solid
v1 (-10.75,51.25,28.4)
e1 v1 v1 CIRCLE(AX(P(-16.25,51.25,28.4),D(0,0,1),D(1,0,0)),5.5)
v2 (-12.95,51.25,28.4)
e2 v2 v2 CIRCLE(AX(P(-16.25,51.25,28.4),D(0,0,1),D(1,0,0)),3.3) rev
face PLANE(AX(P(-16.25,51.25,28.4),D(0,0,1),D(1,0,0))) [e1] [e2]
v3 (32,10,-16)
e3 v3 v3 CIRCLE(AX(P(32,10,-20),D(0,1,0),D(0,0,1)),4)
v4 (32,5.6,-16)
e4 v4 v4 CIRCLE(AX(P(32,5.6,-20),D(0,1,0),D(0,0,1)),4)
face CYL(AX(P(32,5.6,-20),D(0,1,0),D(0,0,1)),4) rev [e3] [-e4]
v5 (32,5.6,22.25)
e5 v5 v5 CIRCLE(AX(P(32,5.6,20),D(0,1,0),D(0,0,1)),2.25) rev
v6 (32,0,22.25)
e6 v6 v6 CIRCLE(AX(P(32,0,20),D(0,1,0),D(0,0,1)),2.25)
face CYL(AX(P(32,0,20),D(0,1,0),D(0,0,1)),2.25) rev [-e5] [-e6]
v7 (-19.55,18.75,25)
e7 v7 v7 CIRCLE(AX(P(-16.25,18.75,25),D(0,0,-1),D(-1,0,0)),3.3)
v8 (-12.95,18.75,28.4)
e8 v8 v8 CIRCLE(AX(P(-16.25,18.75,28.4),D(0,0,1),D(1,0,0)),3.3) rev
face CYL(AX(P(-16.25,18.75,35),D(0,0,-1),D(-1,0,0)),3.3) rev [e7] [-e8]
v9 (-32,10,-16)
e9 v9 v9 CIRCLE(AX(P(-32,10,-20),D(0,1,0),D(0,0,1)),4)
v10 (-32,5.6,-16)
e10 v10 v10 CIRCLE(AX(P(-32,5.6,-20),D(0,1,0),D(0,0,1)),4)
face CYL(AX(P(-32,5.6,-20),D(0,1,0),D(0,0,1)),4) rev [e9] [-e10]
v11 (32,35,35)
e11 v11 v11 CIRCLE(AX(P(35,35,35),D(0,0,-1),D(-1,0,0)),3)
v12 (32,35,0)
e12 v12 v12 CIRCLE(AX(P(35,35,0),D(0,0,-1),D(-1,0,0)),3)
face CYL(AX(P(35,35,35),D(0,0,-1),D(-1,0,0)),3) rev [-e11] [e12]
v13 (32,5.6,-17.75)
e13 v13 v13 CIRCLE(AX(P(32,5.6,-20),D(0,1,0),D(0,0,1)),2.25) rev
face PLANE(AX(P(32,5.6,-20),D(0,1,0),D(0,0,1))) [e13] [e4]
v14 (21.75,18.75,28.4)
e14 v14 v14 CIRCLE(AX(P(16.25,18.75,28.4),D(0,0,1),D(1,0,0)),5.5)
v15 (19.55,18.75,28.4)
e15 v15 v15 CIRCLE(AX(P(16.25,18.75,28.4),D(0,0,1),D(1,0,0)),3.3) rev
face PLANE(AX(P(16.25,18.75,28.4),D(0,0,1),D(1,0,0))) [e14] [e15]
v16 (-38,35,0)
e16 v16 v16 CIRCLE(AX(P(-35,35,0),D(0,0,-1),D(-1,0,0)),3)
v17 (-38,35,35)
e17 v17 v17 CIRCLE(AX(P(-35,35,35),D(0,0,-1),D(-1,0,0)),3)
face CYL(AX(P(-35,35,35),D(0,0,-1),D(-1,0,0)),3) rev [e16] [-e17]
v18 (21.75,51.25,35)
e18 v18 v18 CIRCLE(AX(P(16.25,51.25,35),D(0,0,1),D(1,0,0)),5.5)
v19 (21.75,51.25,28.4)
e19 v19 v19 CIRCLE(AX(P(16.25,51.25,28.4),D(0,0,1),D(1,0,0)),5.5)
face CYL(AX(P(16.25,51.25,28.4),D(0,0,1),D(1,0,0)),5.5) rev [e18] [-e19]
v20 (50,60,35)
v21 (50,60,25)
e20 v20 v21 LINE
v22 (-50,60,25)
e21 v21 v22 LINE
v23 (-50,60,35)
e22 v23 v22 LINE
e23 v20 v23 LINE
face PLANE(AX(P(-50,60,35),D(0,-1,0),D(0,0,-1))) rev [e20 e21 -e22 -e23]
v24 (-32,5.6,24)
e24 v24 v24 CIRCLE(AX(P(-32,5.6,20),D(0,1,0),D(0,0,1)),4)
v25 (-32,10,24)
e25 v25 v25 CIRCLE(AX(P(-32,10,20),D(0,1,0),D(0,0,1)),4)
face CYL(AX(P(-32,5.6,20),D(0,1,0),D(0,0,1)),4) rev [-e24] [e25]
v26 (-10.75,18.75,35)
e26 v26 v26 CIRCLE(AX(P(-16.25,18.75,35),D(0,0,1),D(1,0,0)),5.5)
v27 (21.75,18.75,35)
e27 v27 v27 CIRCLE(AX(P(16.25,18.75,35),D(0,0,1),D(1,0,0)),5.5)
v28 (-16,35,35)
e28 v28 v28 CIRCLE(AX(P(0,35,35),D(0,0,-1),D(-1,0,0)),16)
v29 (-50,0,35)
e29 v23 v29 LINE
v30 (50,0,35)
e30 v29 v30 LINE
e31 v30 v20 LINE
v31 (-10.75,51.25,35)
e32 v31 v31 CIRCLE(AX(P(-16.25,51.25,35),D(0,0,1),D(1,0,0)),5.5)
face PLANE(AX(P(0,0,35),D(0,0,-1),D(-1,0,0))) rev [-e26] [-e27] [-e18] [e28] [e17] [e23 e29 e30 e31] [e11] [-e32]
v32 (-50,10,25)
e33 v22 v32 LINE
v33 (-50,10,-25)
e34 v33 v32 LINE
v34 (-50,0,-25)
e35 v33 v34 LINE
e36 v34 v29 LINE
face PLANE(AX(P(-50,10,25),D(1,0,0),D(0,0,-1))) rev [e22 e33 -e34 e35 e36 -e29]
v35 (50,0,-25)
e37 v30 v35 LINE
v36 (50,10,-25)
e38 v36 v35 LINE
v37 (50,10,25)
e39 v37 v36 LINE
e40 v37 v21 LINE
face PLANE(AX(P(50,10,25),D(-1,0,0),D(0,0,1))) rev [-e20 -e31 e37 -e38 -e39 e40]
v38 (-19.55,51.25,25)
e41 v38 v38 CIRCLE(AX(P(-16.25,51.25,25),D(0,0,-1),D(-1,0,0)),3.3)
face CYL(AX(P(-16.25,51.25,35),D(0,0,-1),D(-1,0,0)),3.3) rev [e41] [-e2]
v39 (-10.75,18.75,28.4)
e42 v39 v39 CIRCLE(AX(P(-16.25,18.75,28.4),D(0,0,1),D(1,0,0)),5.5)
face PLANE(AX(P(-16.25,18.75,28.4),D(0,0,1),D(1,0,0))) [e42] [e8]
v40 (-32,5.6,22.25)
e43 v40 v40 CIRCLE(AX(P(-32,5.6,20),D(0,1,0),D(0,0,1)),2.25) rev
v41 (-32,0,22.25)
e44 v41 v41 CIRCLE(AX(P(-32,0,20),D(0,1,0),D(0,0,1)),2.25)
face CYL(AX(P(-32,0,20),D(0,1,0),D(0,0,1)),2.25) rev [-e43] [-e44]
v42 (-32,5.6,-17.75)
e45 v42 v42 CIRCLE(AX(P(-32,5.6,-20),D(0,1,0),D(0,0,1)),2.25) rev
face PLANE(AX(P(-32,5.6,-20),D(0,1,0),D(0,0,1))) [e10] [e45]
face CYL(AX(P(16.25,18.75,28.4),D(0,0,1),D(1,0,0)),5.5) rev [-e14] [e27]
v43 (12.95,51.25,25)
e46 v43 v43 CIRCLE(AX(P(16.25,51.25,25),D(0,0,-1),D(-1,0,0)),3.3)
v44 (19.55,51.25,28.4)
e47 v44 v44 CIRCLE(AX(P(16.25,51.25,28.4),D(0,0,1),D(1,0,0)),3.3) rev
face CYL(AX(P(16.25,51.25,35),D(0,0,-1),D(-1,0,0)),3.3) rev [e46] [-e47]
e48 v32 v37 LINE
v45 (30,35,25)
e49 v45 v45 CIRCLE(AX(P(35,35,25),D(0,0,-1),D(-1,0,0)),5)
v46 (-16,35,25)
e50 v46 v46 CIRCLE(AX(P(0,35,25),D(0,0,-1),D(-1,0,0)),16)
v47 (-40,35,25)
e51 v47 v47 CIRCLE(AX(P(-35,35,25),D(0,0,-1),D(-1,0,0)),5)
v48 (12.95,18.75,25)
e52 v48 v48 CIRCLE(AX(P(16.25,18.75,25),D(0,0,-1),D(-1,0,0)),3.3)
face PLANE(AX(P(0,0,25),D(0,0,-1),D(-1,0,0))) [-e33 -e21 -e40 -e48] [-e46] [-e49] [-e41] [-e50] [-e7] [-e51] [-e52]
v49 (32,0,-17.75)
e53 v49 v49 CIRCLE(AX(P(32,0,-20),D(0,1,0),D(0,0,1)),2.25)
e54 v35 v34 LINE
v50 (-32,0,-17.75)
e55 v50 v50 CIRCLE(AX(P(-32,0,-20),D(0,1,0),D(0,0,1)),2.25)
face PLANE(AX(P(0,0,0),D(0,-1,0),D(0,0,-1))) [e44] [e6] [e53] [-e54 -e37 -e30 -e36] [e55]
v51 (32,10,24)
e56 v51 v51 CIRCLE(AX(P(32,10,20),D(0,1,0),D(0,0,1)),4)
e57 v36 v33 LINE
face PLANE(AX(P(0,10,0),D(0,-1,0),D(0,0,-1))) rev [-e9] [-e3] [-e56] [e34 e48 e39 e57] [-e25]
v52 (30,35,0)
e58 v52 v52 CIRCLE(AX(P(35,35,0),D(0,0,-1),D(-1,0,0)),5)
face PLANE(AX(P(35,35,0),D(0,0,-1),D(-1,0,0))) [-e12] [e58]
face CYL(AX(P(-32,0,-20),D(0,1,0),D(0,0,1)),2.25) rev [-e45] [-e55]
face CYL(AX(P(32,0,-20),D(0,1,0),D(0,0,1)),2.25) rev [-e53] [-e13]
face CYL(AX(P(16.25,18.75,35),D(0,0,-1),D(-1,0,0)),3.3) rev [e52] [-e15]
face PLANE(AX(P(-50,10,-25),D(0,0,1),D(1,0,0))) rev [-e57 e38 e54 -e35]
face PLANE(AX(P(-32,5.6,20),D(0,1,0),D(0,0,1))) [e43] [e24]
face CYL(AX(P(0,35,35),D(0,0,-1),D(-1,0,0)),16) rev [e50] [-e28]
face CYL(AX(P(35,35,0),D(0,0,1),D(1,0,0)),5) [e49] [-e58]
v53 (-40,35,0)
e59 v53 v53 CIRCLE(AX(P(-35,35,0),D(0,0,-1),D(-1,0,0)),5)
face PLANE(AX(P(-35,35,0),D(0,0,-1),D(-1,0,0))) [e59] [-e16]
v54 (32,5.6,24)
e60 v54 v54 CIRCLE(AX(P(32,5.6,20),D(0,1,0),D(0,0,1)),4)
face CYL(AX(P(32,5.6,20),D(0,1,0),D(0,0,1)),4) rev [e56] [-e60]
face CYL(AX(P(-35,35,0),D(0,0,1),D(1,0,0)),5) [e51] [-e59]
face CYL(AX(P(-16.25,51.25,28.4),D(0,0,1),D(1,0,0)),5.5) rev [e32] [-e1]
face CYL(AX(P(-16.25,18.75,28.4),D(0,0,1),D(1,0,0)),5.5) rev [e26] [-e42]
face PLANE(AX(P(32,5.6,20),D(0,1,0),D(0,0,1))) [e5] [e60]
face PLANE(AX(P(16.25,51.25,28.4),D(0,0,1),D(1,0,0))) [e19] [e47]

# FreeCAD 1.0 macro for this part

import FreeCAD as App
import Part
import Sketcher
from FreeCAD import Vector
Q = App.Units.Quantity

doc = App.newDocument("Part")
body = doc.addObject("PartDesign::Body", "Body")

# Sketch on XZ plane
sketch1 = body.newObject("Sketcher::SketchObject", "Sketch")
sketch1.AttachmentSupport = (doc.getObject("XZ_Plane"), [""])
sketch1.MapMode = "FlatFace"
sketch1.addGeometry([
    Part.LineSegment(Vector(-50, -25, 0), Vector(-50, 25, 0)),
    Part.LineSegment(Vector(-50, 25, 0), Vector(50, 25, 0)),
    Part.LineSegment(Vector(50, 25, 0), Vector(50, -25, 0)),
    Part.LineSegment(Vector(50, -25, 0), Vector(-50, -25, 0)),
], False)
sketch1.addConstraint([
    Sketcher.Constraint("Coincident", 0, 2, 1, 1),
    Sketcher.Constraint("Coincident", 1, 2, 2, 1),
    Sketcher.Constraint("Coincident", 2, 2, 3, 1),
    Sketcher.Constraint("Coincident", 3, 2, 0, 1),
    Sketcher.Constraint("Vertical", 0),
    Sketcher.Constraint("Horizontal", 1),
    Sketcher.Constraint("Vertical", 2),
    Sketcher.Constraint("Horizontal", 3),
    Sketcher.Constraint("Symmetric", 0, 2, 2, 2, -1, 1),
    Sketcher.Constraint("DistanceX", 1, 1, 1, 2, Q("100 mm")),
    Sketcher.Constraint("DistanceY", 0, 1, 0, 2, Q("50 mm")),
])
pad1 = body.newObject("PartDesign::Pad", "Pad")
pad1.Profile = sketch1
pad1.Length = 10
pad1.Reversed = True

# Sketch on XZ plane
sketch2 = body.newObject("Sketcher::SketchObject", "Sketch001")
sketch2.AttachmentSupport = (doc.getObject("XZ_Plane"), [""])
sketch2.MapMode = "FlatFace"
sketch2.AttachmentOffset = App.Placement(Vector(0, 0, -10), App.Rotation())
sketch2.addGeometry([
    Part.Circle(Vector(32, -20, 0), Vector(0, 0, 1), 2.2),
    Part.Circle(Vector(32, 20, 0), Vector(0, 0, 1), 2.2),
    Part.Circle(Vector(-32, -20, 0), Vector(0, 0, 1), 2.2),
    Part.Circle(Vector(-32, 20, 0), Vector(0, 0, 1), 2.2),
], False)
sketch2.addConstraint([
    Sketcher.Constraint("Equal", 0, 1),
    Sketcher.Constraint("Equal", 1, 2),
    Sketcher.Constraint("Equal", 2, 3),
    Sketcher.Constraint("Symmetric", 1, 3, 2, 3, -1, 1),
    Sketcher.Constraint("Symmetric", 0, 3, 3, 3, -1, 1),
    Sketcher.Constraint("Symmetric", 0, 3, 2, 3, -2),
    Sketcher.Constraint("Diameter", 0, Q("4.5 mm")),
    Sketcher.Constraint("DistanceX", -1, 1, 0, 3, Q("32 mm")),
    Sketcher.Constraint("DistanceY", 0, 3, -1, 1, Q("20 mm")),
])
pocket1 = body.newObject("PartDesign::Pocket", "Pocket")
pocket1.Profile = sketch2
pocket1.Type = "ThroughAll"
pocket1.Reversed = True

# Sketch on XZ plane
sketch3 = body.newObject("Sketcher::SketchObject", "Sketch002")
sketch3.AttachmentSupport = (doc.getObject("XZ_Plane"), [""])
sketch3.MapMode = "FlatFace"
sketch3.AttachmentOffset = App.Placement(Vector(0, 0, -10), App.Rotation())
sketch3.addGeometry([
    Part.Circle(Vector(32, -20, 0), Vector(0, 0, 1), 4),
    Part.Circle(Vector(32, 20, 0), Vector(0, 0, 1), 4),
    Part.Circle(Vector(-32, -20, 0), Vector(0, 0, 1), 4),
    Part.Circle(Vector(-32, 20, 0), Vector(0, 0, 1), 4),
], False)
sketch3.addConstraint([
    Sketcher.Constraint("Equal", 0, 1),
    Sketcher.Constraint("Equal", 1, 2),
    Sketcher.Constraint("Equal", 2, 3),
    Sketcher.Constraint("Symmetric", 1, 3, 2, 3, -1, 1),
    Sketcher.Constraint("Symmetric", 0, 3, 3, 3, -1, 1),
    Sketcher.Constraint("Symmetric", 0, 3, 2, 3, -2),
    Sketcher.Constraint("Diameter", 0, Q("8 mm")),
    Sketcher.Constraint("DistanceX", -1, 1, 0, 3, Q("32 mm")),
    Sketcher.Constraint("DistanceY", 0, 3, -1, 1, Q("20 mm")),
])
pocket2 = body.newObject("PartDesign::Pocket", "Pocket001")
pocket2.Profile = sketch3
pocket2.Length = 4.4
pocket2.Reversed = True

# Sketch on XY plane
sketch4 = body.newObject("Sketcher::SketchObject", "Sketch003")
sketch4.AttachmentSupport = (doc.getObject("XY_Plane"), [""])
sketch4.MapMode = "FlatFace"
sketch4.AttachmentOffset = App.Placement(Vector(0, 0, 25), App.Rotation())
sketch4.addGeometry([
    Part.LineSegment(Vector(-50, 60, 0), Vector(-50, 0, 0)),
    Part.LineSegment(Vector(-50, 0, 0), Vector(50, 0, 0)),
    Part.LineSegment(Vector(50, 0, 0), Vector(50, 60, 0)),
    Part.LineSegment(Vector(50, 60, 0), Vector(-50, 60, 0)),
], False)
sketch4.addConstraint([
    Sketcher.Constraint("Coincident", 0, 2, 1, 1),
    Sketcher.Constraint("Coincident", 1, 2, 2, 1),
    Sketcher.Constraint("Coincident", 2, 2, 3, 1),
    Sketcher.Constraint("Coincident", 3, 2, 0, 1),
    Sketcher.Constraint("Vertical", 0),
    Sketcher.Constraint("Horizontal", 1),
    Sketcher.Constraint("Vertical", 2),
    Sketcher.Constraint("Horizontal", 3),
    Sketcher.Constraint("Symmetric", 0, 2, 1, 2, -1, 1),
    Sketcher.Constraint("DistanceX", 1, 1, 1, 2, Q("100 mm")),
    Sketcher.Constraint("DistanceY", 0, 2, 0, 1, Q("60 mm")),
])
pad2 = body.newObject("PartDesign::Pad", "Pad001")
pad2.Profile = sketch4
pad2.Length = 10

# Sketch on XY plane
sketch5 = body.newObject("Sketcher::SketchObject", "Sketch004")
sketch5.AttachmentSupport = (doc.getObject("XY_Plane"), [""])
sketch5.MapMode = "FlatFace"
sketch5.AttachmentOffset = App.Placement(Vector(0, 0, 25), App.Rotation())
sketch5.addGeometry(Part.Circle(Vector(0, 35, 0), Vector(0, 0, 1), 16), False)
sketch5.addConstraint([
    Sketcher.Constraint("PointOnObject", 0, 3, -2),
    Sketcher.Constraint("Diameter", 0, Q("32 mm")),
    Sketcher.Constraint("DistanceY", -1, 1, 0, 3, Q("35 mm")),
])
pocket3 = body.newObject("PartDesign::Pocket", "Pocket002")
pocket3.Profile = sketch5
pocket3.Type = "ThroughAll"
pocket3.Reversed = True

# Sketch on XY plane
sketch6 = body.newObject("Sketcher::SketchObject", "Sketch005")
sketch6.AttachmentSupport = (doc.getObject("XY_Plane"), [""])
sketch6.MapMode = "FlatFace"
sketch6.AttachmentOffset = App.Placement(Vector(0, 0, 25), App.Rotation())
sketch6.addGeometry([
    Part.Circle(Vector(16.2, 51.2, 0), Vector(0, 0, 1), 3.3),
    Part.Circle(Vector(16.2, 18.8, 0), Vector(0, 0, 1), 3.3),
    Part.Circle(Vector(-16.2, 18.8, 0), Vector(0, 0, 1), 3.3),
    Part.Circle(Vector(-16.2, 51.2, 0), Vector(0, 0, 1), 3.3),
], False)
sketch6.addConstraint([
    Sketcher.Constraint("Equal", 0, 1),
    Sketcher.Constraint("Equal", 1, 2),
    Sketcher.Constraint("Equal", 2, 3),
    Sketcher.Constraint("Symmetric", 1, 3, 2, 3, -2),
    Sketcher.Constraint("Symmetric", 0, 3, 3, 3, -2),
    Sketcher.Constraint("Vertical", 0, 3, 1, 3),
    Sketcher.Constraint("Diameter", 0, Q("6.6 mm")),
    Sketcher.Constraint("DistanceY", 1, 3, 0, 3, Q("32.5 mm")),
    Sketcher.Constraint("DistanceX", 2, 3, 1, 3, Q("32.5 mm")),
    Sketcher.Constraint("DistanceY", -1, 1, 0, 3, Q("51.25 mm")),
])
pocket4 = body.newObject("PartDesign::Pocket", "Pocket003")
pocket4.Profile = sketch6
pocket4.Type = "ThroughAll"
pocket4.Reversed = True

# Sketch on XY plane
sketch7 = body.newObject("Sketcher::SketchObject", "Sketch006")
sketch7.AttachmentSupport = (doc.getObject("XY_Plane"), [""])
sketch7.MapMode = "FlatFace"
sketch7.AttachmentOffset = App.Placement(Vector(0, 0, 35), App.Rotation())
sketch7.addGeometry([
    Part.Circle(Vector(-16, 51, 0), Vector(0, 0, 1), 6),
    Part.Circle(Vector(16, 51, 0), Vector(0, 0, 1), 6),
    Part.Circle(Vector(16, 19, 0), Vector(0, 0, 1), 6),
    Part.Circle(Vector(-16, 19, 0), Vector(0, 0, 1), 6),
], False)
sketch7.addConstraint([
    Sketcher.Constraint("Equal", 0, 1),
    Sketcher.Constraint("Equal", 1, 2),
    Sketcher.Constraint("Equal", 2, 3),
    Sketcher.Constraint("Symmetric", 0, 3, 1, 3, -2),
    Sketcher.Constraint("Symmetric", 2, 3, 3, 3, -2),
    Sketcher.Constraint("Vertical", 1, 3, 2, 3),
    Sketcher.Constraint("Diameter", 0, Q("11 mm")),
    Sketcher.Constraint("DistanceX", 0, 3, 1, 3, Q("32.5 mm")),
    Sketcher.Constraint("DistanceY", 2, 3, 1, 3, Q("32.5 mm")),
    Sketcher.Constraint("DistanceY", -1, 1, 0, 3, Q("51.25 mm")),
])
pocket5 = body.newObject("PartDesign::Pocket", "Pocket004")
pocket5.Profile = sketch7
pocket5.Length = 6.6

# Sketch on XY plane
sketch8 = body.newObject("Sketcher::SketchObject", "Sketch007")
sketch8.AttachmentSupport = (doc.getObject("XY_Plane"), [""])
sketch8.MapMode = "FlatFace"
sketch8.AttachmentOffset = App.Placement(Vector(0, 0, 25), App.Rotation())
sketch8.addGeometry([
    Part.Circle(Vector(35, 35, 0), Vector(0, 0, 1), 3),
    Part.Circle(Vector(-35, 35, 0), Vector(0, 0, 1), 3),
], False)
sketch8.addConstraint([
    Sketcher.Constraint("Equal", 0, 1),
    Sketcher.Constraint("Symmetric", 0, 3, 1, 3, -2),
    Sketcher.Constraint("Diameter", 0, Q("6 mm")),
    Sketcher.Constraint("DistanceX", -1, 1, 0, 3, Q("35 mm")),
    Sketcher.Constraint("DistanceY", -1, 1, 0, 3, Q("35 mm")),
])
pocket6 = body.newObject("PartDesign::Pocket", "Pocket005")
pocket6.Profile = sketch8
pocket6.Type = "ThroughAll"
pocket6.Reversed = True

# Sketch on XY plane
sketch9 = body.newObject("Sketcher::SketchObject", "Sketch008")
sketch9.AttachmentSupport = (doc.getObject("XY_Plane"), [""])
sketch9.MapMode = "FlatFace"
sketch9.AttachmentOffset = App.Placement(Vector(0, 0, 25), App.Rotation())
sketch9.addGeometry([
    Part.Circle(Vector(35, 35, 0), Vector(0, 0, 1), 5),
    Part.Circle(Vector(35, 35, 0), Vector(0, 0, 1), 3),
    Part.Circle(Vector(-35, 35, 0), Vector(0, 0, 1), 5),
    Part.Circle(Vector(-35, 35, 0), Vector(0, 0, 1), 3),
], False)
sketch9.addConstraint([
    Sketcher.Constraint("Coincident", 1, 3, 0, 3),
    Sketcher.Constraint("Coincident", 3, 3, 2, 3),
    Sketcher.Constraint("Equal", 0, 2),
    Sketcher.Constraint("Equal", 1, 3),
    Sketcher.Constraint("Symmetric", 0, 3, 2, 3, -2),
    Sketcher.Constraint("Diameter", 0, Q("10 mm")),
    Sketcher.Constraint("Diameter", 1, Q("6 mm")),
    Sketcher.Constraint("DistanceX", -1, 1, 0, 3, Q("35 mm")),
    Sketcher.Constraint("DistanceY", -1, 1, 0, 3, Q("35 mm")),
])
pad3 = body.newObject("PartDesign::Pad", "Pad002")
pad3.Profile = sketch9
pad3.Length = 25
pad3.Reversed = True

doc.recompute()
